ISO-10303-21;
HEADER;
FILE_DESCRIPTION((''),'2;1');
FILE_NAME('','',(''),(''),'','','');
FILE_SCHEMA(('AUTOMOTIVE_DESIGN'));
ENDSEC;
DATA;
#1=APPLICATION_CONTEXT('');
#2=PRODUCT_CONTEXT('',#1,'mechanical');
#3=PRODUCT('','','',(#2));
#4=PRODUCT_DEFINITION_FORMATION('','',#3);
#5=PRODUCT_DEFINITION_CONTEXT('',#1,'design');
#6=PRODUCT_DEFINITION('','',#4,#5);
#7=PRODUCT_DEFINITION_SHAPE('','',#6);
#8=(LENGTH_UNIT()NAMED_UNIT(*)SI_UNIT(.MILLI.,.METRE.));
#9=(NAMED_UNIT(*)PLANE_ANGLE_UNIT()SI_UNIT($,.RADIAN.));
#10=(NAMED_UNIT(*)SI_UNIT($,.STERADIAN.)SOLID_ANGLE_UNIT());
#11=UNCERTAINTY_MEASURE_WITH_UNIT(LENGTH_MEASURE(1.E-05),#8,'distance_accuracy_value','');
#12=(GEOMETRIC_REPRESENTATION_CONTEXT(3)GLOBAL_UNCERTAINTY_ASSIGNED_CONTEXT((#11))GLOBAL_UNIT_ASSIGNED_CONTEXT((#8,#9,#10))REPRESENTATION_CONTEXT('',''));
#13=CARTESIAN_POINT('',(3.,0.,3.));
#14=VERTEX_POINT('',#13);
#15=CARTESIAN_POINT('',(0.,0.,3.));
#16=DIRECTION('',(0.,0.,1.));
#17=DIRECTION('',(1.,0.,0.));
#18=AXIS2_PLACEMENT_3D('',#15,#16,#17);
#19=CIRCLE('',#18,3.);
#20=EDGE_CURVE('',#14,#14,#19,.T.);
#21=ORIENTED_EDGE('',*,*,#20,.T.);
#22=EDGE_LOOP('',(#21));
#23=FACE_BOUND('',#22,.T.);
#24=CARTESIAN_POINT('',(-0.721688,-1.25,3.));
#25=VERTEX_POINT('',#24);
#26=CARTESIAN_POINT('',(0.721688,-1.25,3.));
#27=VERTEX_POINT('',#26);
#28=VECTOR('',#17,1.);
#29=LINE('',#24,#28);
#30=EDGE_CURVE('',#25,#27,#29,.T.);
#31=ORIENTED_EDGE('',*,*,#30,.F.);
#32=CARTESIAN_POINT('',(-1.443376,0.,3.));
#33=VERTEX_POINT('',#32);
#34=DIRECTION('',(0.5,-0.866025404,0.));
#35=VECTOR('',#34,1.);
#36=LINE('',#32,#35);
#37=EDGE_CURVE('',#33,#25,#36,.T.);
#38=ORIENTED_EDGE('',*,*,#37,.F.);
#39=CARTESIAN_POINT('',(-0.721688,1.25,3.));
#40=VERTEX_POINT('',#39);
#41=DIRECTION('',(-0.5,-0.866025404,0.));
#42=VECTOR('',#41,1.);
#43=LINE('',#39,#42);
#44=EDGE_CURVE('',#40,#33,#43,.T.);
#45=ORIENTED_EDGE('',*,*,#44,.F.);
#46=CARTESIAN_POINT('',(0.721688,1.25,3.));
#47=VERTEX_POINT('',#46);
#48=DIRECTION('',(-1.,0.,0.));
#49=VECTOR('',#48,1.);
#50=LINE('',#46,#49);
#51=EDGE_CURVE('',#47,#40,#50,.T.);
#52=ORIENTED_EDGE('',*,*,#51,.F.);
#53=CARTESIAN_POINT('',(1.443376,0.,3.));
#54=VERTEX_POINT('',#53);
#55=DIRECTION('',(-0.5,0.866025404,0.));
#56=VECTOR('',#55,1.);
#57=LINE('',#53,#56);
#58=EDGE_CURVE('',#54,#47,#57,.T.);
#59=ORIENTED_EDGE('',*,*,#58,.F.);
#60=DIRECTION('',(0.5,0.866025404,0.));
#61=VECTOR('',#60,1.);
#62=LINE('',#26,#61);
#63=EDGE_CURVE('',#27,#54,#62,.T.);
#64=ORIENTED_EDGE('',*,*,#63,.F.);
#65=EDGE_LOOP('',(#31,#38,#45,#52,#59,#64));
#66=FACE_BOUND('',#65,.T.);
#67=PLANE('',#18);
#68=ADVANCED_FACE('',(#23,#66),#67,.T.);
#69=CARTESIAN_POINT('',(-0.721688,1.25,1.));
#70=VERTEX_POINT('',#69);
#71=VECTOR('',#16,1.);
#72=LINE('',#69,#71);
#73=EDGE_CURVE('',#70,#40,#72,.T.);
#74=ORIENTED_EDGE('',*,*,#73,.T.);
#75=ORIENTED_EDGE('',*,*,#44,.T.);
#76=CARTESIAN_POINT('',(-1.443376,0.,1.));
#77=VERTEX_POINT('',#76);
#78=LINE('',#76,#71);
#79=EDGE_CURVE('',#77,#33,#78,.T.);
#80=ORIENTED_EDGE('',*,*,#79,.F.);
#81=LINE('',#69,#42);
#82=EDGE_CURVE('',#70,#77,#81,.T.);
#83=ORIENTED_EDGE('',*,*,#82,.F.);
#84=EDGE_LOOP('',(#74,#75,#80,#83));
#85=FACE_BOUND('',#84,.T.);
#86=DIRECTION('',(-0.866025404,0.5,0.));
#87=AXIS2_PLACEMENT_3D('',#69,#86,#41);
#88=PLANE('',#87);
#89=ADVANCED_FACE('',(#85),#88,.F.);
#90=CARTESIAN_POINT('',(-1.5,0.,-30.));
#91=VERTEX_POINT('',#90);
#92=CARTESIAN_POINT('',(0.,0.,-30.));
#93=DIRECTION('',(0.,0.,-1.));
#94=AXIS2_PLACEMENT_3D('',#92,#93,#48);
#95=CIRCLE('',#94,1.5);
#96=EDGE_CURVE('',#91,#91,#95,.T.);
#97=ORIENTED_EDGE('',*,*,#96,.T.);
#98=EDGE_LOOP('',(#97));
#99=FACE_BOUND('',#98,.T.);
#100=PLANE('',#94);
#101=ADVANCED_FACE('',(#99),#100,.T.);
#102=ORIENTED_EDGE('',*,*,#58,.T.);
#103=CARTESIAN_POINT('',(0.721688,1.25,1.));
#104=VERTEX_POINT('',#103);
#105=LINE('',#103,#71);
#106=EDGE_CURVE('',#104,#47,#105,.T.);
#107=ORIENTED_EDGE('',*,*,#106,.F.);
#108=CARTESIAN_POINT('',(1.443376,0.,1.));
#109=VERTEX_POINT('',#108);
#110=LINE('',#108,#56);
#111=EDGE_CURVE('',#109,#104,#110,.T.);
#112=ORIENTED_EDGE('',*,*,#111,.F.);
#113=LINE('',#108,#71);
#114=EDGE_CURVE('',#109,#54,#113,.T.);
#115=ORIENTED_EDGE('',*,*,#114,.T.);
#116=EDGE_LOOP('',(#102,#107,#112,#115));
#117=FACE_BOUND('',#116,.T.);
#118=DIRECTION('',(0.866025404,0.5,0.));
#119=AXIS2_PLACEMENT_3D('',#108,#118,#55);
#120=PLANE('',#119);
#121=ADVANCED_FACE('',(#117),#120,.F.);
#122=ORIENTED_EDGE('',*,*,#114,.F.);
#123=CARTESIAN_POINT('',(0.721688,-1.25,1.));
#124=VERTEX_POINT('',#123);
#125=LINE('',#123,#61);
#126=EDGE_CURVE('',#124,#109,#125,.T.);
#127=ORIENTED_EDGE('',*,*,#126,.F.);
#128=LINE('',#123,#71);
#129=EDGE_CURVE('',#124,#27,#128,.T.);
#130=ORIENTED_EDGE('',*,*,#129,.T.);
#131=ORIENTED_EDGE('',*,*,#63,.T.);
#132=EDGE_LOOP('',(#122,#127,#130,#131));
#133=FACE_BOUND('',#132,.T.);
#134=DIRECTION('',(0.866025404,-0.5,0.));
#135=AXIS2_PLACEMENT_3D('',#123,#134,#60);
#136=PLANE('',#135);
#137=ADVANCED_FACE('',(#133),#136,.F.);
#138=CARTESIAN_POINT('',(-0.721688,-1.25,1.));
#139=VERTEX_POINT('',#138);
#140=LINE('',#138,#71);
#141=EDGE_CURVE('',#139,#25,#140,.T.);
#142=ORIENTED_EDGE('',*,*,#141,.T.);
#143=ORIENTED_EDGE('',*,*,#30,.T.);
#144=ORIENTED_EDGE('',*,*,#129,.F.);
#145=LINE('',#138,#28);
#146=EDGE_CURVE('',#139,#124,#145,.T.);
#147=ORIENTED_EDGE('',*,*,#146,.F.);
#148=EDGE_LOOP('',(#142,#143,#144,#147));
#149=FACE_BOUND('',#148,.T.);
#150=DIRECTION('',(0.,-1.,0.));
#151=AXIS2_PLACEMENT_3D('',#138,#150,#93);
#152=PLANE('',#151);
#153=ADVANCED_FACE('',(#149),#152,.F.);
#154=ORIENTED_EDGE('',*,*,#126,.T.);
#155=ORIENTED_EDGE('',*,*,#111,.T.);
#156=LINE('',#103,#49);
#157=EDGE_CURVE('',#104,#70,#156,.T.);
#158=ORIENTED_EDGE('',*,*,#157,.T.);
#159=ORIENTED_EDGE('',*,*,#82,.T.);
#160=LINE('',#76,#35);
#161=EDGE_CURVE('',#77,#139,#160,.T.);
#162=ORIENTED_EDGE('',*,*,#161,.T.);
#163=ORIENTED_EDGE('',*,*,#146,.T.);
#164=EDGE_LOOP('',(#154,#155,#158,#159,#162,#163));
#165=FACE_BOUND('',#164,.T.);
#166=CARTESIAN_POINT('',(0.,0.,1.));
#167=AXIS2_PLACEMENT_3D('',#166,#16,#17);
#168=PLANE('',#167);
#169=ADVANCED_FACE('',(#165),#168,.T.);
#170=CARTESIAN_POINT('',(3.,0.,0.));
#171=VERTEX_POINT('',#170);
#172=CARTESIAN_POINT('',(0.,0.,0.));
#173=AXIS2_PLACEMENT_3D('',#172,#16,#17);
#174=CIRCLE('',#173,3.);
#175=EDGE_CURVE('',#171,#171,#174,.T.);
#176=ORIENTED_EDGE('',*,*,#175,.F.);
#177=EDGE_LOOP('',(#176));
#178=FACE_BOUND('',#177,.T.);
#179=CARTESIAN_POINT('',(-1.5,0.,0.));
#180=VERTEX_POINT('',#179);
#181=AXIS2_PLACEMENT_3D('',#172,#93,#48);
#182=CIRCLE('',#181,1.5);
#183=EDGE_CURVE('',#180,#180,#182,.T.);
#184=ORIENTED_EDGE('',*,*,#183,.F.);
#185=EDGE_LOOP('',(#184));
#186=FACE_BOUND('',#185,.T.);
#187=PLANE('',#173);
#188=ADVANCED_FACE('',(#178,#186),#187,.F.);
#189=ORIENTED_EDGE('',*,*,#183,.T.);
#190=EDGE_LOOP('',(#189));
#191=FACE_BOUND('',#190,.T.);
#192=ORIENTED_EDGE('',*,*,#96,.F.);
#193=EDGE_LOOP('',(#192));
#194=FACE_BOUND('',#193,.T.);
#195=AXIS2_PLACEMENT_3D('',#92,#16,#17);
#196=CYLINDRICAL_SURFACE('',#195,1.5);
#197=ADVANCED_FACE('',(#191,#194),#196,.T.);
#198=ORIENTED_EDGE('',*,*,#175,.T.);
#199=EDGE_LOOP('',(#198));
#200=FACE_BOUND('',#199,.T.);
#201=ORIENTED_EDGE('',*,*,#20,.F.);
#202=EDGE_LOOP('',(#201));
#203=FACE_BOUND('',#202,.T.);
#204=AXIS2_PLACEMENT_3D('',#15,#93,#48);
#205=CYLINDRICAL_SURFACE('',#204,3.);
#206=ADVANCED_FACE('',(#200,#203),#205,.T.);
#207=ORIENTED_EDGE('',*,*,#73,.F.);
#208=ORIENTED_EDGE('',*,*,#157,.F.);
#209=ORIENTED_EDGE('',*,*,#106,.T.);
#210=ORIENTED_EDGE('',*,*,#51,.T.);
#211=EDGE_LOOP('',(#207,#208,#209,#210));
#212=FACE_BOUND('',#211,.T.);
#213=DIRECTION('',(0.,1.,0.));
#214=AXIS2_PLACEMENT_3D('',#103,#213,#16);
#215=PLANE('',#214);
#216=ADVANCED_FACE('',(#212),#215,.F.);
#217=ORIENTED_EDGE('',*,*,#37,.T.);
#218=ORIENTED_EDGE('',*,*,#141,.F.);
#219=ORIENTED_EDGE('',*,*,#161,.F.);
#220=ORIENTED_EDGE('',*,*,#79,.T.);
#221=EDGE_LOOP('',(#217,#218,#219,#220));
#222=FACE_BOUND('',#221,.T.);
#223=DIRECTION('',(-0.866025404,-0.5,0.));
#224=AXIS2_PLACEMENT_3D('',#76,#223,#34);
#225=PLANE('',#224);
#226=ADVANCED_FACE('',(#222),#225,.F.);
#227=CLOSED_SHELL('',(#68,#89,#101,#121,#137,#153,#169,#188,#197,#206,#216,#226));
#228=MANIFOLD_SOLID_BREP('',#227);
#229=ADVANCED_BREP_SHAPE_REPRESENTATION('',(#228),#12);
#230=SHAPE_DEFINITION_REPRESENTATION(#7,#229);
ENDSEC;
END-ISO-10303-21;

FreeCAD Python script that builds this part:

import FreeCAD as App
import Part
import Sketcher
from FreeCAD import Vector
Q = App.Units.Quantity

doc = App.newDocument("Part")
body = doc.addObject("PartDesign::Body", "Body")

# Sketch on XY plane
sketch1 = body.newObject("Sketcher::SketchObject", "Sketch")
sketch1.AttachmentSupport = (doc.getObject("XY_Plane"), [""])
sketch1.MapMode = "FlatFace"
sketch1.addGeometry(Part.Circle(Vector(0, 0, 0), Vector(0, 0, 1), 3), False)
sketch1.addConstraint(Sketcher.Constraint("Coincident", 0, 3, -1, 1))
sketch1.addConstraint(Sketcher.Constraint("Diameter", 0, Q("6 mm")))
pad1 = body.newObject("PartDesign::Pad", "Pad")
pad1.Profile = sketch1
pad1.Length = 3

# Sketch on XY plane
sketch2 = body.newObject("Sketcher::SketchObject", "Sketch001")
sketch2.AttachmentSupport = (doc.getObject("XY_Plane"), [""])
sketch2.MapMode = "FlatFace"
sketch2.AttachmentOffset = App.Placement(Vector(0, 0, 3), App.Rotation())
sketch2.addGeometry(Part.LineSegment(Vector(1.443376, 0, 0), Vector(0.721688, 1.25, 0)), False)
sketch2.addGeometry(Part.LineSegment(Vector(0.721688, 1.25, 0), Vector(-0.721688, 1.25, 0)), False)
sketch2.addGeometry(Part.LineSegment(Vector(-0.721688, 1.25, 0), Vector(-1.443376, 0, 0)), False)
sketch2.addGeometry(Part.LineSegment(Vector(-1.443376, 0, 0), Vector(-0.721688, -1.25, 0)), False)
sketch2.addGeometry(Part.LineSegment(Vector(-0.721688, -1.25, 0), Vector(0.721688, -1.25, 0)), False)
sketch2.addGeometry(Part.LineSegment(Vector(0.721688, -1.25, 0), Vector(1.443376, 0, 0)), False)
sketch2.addConstraint(Sketcher.Constraint("Coincident", 0, 2, 1, 1))
sketch2.addConstraint(Sketcher.Constraint("Coincident", 1, 2, 2, 1))
sketch2.addConstraint(Sketcher.Constraint("Coincident", 2, 2, 3, 1))
sketch2.addConstraint(Sketcher.Constraint("Coincident", 3, 2, 4, 1))
sketch2.addConstraint(Sketcher.Constraint("Coincident", 4, 2, 5, 1))
sketch2.addConstraint(Sketcher.Constraint("Coincident", 5, 2, 0, 1))
sketch2.addConstraint(Sketcher.Constraint("Horizontal", 1))
sketch2.addConstraint(Sketcher.Constraint("Horizontal", 4))
sketch2.addConstraint(Sketcher.Constraint("Symmetric", 0, 2, 3, 2, -1, 1))
sketch2.addConstraint(Sketcher.Constraint("Symmetric", 2, 2, 5, 2, -1, 1))
sketch2.addConstraint(Sketcher.Constraint("PointOnObject", 2, 2, -1))
sketch2.addConstraint(Sketcher.Constraint("Parallel", 2, 5))
sketch2.addConstraint(Sketcher.Constraint("Vertical", 1, 2, 3, 2))
sketch2.addConstraint(Sketcher.Constraint("Angle", 0, Q("120 deg")))
sketch2.addConstraint(Sketcher.Constraint("DistanceY", 3, 2, 1, 2, Q("2.5 mm")))
sketch2.addConstraint(Sketcher.Constraint("DistanceX", 1, 2, 1, 1, Q("1.443376 mm")))
pocket1 = body.newObject("PartDesign::Pocket", "Pocket")
pocket1.Profile = sketch2
pocket1.Length = 2

# Sketch on XY plane
sketch3 = body.newObject("Sketcher::SketchObject", "Sketch002")
sketch3.AttachmentSupport = (doc.getObject("XY_Plane"), [""])
sketch3.MapMode = "FlatFace"
sketch3.addGeometry(Part.Circle(Vector(0, 0, 0), Vector(0, 0, 1), 1.5), False)
sketch3.addConstraint(Sketcher.Constraint("Coincident", 0, 3, -1, 1))
sketch3.addConstraint(Sketcher.Constraint("Diameter", 0, Q("3 mm")))
pad2 = body.newObject("PartDesign::Pad", "Pad001")
pad2.Profile = sketch3
pad2.Length = 30
pad2.Reversed = True

doc.recompute()
